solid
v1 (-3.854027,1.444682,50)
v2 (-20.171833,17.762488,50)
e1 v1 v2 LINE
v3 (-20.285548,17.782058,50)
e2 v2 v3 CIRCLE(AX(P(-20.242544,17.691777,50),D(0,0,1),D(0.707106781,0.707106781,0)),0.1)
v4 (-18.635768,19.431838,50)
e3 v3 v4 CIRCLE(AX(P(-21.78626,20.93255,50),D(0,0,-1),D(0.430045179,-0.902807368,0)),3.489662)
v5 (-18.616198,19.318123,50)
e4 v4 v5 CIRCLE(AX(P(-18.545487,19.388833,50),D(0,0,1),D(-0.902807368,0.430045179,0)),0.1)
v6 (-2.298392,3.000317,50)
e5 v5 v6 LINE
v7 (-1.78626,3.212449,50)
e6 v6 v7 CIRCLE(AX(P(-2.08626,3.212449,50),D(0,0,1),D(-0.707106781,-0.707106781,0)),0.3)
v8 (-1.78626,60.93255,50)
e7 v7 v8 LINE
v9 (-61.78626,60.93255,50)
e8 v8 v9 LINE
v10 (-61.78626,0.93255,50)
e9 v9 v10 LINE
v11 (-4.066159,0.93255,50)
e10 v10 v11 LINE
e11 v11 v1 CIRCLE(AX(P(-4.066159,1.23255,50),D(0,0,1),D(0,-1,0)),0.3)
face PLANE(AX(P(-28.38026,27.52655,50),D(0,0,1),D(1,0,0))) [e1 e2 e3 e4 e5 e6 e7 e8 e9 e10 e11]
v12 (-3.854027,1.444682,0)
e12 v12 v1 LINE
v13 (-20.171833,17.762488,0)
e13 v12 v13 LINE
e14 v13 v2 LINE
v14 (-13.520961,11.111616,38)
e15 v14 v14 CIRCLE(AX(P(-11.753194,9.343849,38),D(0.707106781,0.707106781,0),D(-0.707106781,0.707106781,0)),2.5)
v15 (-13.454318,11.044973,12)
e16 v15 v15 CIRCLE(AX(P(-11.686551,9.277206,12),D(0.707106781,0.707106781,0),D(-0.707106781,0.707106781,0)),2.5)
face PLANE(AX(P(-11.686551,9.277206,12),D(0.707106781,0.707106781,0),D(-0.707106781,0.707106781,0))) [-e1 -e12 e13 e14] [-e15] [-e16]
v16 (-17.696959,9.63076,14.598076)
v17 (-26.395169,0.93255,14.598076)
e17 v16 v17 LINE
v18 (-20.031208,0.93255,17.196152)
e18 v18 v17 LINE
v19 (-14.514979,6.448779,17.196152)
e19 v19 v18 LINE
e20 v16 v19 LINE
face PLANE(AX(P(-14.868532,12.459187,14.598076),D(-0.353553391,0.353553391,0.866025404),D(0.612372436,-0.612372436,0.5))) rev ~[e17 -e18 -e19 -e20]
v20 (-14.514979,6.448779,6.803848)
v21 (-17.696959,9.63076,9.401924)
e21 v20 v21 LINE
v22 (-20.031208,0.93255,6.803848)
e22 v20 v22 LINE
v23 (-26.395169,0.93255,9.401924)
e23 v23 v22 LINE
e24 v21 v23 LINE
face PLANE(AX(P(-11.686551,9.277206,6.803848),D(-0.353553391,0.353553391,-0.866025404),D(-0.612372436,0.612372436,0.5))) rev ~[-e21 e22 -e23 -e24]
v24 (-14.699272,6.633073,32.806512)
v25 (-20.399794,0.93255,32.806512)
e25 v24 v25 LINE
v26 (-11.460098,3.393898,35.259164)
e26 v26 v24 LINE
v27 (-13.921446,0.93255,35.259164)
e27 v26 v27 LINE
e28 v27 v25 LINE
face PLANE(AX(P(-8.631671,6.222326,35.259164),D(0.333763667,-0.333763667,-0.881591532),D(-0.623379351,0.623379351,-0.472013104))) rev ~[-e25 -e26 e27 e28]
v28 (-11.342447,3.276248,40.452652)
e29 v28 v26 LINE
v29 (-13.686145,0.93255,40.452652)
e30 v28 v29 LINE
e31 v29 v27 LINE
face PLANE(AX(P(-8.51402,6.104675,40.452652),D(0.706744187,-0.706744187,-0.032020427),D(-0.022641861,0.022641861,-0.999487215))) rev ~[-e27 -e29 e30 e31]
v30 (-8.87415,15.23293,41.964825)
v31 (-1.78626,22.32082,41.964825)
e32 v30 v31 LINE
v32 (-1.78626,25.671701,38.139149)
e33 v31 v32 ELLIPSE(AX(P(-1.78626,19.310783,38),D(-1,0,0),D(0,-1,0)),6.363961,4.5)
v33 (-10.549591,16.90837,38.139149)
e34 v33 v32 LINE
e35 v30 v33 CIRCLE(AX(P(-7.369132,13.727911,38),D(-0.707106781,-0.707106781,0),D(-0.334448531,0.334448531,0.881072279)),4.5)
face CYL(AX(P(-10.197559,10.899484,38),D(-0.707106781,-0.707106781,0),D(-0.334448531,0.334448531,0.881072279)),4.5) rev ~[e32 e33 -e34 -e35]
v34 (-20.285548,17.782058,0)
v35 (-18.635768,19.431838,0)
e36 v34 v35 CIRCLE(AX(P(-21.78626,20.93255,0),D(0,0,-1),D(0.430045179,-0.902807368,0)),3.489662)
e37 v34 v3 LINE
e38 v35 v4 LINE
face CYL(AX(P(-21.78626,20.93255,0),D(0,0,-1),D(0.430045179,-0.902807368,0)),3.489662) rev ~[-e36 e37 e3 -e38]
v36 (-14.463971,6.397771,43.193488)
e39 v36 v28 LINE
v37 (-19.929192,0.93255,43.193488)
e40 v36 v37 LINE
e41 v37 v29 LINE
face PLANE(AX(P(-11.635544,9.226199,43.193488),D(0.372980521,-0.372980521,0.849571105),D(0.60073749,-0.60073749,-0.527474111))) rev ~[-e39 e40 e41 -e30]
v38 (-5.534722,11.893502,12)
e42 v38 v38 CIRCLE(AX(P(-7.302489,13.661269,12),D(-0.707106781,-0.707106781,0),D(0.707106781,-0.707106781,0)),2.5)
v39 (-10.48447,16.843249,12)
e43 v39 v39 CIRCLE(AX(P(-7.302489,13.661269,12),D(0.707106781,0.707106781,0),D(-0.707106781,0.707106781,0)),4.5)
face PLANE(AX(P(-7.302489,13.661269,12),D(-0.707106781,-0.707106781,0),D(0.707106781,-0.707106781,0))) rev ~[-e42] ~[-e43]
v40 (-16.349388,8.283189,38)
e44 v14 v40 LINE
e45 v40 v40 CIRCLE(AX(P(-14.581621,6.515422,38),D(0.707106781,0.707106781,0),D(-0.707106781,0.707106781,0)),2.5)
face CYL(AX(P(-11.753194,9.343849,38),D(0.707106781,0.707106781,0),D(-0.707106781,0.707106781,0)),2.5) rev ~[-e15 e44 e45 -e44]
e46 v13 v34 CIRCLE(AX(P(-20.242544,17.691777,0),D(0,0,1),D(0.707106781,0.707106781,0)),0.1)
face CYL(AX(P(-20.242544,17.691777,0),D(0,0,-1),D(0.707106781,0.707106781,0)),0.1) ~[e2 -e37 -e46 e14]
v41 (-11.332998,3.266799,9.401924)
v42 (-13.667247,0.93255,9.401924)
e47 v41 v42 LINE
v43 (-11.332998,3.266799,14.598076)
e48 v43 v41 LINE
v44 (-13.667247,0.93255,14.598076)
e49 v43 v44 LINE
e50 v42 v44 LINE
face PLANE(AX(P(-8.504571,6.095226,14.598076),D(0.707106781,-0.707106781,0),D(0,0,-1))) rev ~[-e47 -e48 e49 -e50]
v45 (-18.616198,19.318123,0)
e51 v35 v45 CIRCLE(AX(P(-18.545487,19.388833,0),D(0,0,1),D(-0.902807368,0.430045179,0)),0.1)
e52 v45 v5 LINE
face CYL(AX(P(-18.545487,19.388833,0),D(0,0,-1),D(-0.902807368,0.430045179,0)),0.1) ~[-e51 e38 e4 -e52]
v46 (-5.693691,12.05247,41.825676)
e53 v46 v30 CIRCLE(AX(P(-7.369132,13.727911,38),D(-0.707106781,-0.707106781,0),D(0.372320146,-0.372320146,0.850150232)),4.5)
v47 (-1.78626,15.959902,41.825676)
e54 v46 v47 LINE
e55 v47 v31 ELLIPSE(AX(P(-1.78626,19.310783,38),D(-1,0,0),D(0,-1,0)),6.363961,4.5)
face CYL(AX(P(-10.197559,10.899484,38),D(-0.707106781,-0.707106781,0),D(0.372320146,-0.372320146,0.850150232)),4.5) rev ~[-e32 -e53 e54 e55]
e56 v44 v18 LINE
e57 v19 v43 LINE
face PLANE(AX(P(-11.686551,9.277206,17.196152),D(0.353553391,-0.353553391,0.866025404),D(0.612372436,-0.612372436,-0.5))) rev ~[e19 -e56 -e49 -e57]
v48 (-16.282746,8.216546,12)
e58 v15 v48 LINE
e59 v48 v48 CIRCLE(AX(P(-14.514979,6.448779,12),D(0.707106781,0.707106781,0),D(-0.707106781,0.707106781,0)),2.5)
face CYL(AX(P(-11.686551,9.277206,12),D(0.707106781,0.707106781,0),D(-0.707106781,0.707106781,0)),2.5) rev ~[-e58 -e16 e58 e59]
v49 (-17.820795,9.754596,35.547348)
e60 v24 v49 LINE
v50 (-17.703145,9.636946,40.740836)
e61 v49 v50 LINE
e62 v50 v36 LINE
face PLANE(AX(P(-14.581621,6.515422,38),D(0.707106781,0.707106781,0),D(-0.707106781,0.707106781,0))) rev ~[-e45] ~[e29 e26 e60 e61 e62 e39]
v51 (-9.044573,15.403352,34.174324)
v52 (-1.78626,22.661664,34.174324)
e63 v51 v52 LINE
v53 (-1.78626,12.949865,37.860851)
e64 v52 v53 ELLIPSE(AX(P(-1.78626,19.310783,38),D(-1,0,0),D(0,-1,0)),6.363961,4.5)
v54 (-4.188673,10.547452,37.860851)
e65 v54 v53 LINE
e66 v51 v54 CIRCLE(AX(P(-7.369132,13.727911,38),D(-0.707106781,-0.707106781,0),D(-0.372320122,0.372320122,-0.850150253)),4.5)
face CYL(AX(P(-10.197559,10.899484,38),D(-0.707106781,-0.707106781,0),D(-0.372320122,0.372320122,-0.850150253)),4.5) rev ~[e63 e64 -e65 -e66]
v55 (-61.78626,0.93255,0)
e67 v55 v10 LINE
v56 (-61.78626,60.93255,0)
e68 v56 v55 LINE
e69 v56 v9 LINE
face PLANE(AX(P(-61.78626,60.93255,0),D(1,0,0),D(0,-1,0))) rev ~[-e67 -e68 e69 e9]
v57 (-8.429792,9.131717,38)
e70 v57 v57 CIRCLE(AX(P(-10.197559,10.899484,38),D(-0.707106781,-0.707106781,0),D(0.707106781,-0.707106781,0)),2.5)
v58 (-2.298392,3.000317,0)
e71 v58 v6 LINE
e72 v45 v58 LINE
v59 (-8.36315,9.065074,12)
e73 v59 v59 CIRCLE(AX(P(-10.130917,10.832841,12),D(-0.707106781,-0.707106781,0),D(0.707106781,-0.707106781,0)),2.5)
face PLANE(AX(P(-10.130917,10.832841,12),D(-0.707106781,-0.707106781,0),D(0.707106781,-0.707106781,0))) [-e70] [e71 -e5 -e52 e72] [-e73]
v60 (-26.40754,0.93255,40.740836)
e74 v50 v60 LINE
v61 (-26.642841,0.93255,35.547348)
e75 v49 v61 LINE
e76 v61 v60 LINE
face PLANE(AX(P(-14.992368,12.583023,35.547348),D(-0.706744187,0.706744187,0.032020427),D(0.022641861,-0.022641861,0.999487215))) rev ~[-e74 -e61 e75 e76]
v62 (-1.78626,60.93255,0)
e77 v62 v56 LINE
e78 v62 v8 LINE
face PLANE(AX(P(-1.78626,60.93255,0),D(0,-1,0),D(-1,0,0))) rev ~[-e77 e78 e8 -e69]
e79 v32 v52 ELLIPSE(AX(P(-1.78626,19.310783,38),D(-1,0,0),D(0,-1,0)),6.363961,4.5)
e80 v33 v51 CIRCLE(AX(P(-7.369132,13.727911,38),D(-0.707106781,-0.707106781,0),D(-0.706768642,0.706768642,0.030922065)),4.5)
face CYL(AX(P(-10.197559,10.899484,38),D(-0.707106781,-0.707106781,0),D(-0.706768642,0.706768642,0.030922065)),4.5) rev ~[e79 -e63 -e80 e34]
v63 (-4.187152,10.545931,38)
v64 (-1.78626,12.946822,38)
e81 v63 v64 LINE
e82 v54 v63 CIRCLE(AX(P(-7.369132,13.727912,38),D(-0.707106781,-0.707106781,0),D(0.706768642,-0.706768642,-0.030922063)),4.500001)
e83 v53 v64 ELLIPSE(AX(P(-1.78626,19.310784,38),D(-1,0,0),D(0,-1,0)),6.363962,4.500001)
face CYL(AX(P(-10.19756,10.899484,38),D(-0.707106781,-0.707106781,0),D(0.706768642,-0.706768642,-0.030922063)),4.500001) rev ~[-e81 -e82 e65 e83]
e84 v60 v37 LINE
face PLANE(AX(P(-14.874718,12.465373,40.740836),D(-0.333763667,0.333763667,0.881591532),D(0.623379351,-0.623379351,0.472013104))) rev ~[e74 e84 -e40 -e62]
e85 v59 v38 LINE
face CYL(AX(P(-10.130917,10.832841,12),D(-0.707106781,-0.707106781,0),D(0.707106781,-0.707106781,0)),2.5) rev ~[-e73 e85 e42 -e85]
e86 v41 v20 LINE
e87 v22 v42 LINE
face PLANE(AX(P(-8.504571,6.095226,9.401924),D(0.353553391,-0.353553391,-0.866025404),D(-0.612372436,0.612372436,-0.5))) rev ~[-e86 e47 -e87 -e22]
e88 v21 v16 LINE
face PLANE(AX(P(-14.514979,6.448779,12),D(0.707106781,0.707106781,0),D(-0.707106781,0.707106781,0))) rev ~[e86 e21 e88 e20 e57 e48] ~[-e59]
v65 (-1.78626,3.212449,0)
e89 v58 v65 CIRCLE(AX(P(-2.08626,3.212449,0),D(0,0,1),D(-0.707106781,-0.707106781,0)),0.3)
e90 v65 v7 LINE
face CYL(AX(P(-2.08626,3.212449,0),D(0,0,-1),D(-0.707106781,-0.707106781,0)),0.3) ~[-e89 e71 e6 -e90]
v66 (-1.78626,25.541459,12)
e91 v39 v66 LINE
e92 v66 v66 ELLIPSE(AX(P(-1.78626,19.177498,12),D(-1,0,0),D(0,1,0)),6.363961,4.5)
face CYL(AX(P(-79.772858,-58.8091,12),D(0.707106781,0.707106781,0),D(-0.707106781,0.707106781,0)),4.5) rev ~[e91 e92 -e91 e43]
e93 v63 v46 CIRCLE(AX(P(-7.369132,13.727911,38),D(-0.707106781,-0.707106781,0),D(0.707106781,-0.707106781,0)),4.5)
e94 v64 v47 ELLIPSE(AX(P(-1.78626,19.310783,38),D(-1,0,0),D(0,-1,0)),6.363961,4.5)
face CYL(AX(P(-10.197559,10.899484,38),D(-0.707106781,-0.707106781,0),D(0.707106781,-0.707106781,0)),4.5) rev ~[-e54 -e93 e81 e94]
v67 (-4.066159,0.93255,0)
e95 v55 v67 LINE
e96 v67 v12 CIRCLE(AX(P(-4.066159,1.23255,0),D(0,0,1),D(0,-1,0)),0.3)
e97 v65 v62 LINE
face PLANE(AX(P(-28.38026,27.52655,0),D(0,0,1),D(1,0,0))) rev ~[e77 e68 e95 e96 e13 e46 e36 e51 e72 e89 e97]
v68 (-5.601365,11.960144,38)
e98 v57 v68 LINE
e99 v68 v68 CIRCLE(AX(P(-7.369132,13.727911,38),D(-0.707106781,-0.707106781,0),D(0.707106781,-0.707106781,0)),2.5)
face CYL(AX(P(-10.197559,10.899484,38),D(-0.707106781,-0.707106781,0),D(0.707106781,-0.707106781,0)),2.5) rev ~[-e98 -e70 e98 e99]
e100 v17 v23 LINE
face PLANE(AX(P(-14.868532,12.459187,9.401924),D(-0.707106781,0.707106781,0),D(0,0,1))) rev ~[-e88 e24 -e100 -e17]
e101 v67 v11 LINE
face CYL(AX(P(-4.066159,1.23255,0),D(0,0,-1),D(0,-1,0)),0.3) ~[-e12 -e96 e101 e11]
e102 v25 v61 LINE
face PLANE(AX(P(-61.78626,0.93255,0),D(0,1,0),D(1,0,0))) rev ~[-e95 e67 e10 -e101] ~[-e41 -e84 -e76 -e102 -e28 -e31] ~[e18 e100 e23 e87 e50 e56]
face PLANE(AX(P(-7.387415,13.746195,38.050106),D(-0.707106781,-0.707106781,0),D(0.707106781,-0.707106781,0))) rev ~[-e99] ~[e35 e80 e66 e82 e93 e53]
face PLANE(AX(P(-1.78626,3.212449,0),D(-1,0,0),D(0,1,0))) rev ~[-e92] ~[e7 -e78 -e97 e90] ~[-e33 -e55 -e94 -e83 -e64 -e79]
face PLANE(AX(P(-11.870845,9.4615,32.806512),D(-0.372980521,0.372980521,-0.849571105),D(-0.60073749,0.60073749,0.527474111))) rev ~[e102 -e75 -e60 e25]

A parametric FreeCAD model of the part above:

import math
import FreeCAD as App
import Part
import Sketcher

V = App.Vector
Q = App.Units.Quantity

doc = App.newDocument("Part")
body = doc.addObject("PartDesign::Body", "Body")

sketch1 = doc.addObject("Sketcher::SketchObject", "Sketch")
body.addObject(sketch1)
sketch1.AttachmentSupport = (doc.XY_Plane, [""])
sketch1.MapMode = "FlatFace"
sketch1.addGeometry(Part.LineSegment(V(-1.78626, 60.93255, 0), V(-61.78626, 60.93255, 0)), False)
sketch1.addGeometry(Part.LineSegment(V(-61.78626, 60.93255, 0), V(-61.78626, 0.93255, 0)), False)
sketch1.addGeometry(Part.LineSegment(V(-61.78626, 0.93255, 0), V(-4.066159, 0.93255, 0)), False)
sketch1.addGeometry(Part.ArcOfCircle(Part.Circle(V(-4.066159, 1.23255, 0), V(0, 0, 1), 0.3), math.radians(-90), math.radians(45)), False)
sketch1.addGeometry(Part.LineSegment(V(-3.854027, 1.444682, 0), V(-20.171833, 17.762488, 0)), False)
sketch1.addGeometry(Part.ArcOfCircle(Part.Circle(V(-20.242544, 17.691777, 0), V(0, 0, 1), 0.1), math.radians(45), math.radians(115.470427)), False)
sketch1.addGeometry(Part.ArcOfCircle(Part.Circle(V(-21.78626, 20.93255, 0), V(0, 0, 1), 3.489662), math.radians(-25.470427), math.radians(295.470427)), False)
sketch1.addGeometry(Part.ArcOfCircle(Part.Circle(V(-18.545487, 19.388833, 0), V(0, 0, 1), 0.1), math.radians(154.529573), math.radians(225)), False)
sketch1.addGeometry(Part.LineSegment(V(-18.616198, 19.318123, 0), V(-2.298392, 3.000317, 0)), False)
sketch1.addGeometry(Part.ArcOfCircle(Part.Circle(V(-2.08626, 3.212449, 0), V(0, 0, 1), 0.3), math.radians(-135), math.radians(0)), False)
sketch1.addGeometry(Part.LineSegment(V(-1.78626, 3.212449, 0), V(-1.78626, 60.93255, 0)), False)
sketch1.addConstraint(Sketcher.Constraint("Coincident", 0, 2, 1, 1))
sketch1.addConstraint(Sketcher.Constraint("Coincident", 1, 2, 2, 1))
sketch1.addConstraint(Sketcher.Constraint("Tangent", 2, 2, 3, 1))
sketch1.addConstraint(Sketcher.Constraint("Tangent", 3, 2, 4, 1))
sketch1.addConstraint(Sketcher.Constraint("Tangent", 4, 2, 5, 1))
sketch1.addConstraint(Sketcher.Constraint("Tangent", 5, 2, 6, 2))
sketch1.addConstraint(Sketcher.Constraint("Tangent", 6, 1, 7, 1))
sketch1.addConstraint(Sketcher.Constraint("Tangent", 7, 2, 8, 1))
sketch1.addConstraint(Sketcher.Constraint("Tangent", 8, 2, 9, 1))
sketch1.addConstraint(Sketcher.Constraint("Tangent", 9, 2, 10, 1))
sketch1.addConstraint(Sketcher.Constraint("Coincident", 10, 2, 0, 1))
sketch1.addConstraint(Sketcher.Constraint("Horizontal", 0))
sketch1.addConstraint(Sketcher.Constraint("Vertical", 1))
sketch1.addConstraint(Sketcher.Constraint("Horizontal", 2))
sketch1.addConstraint(Sketcher.Constraint("Vertical", 10))
sketch1.addConstraint(Sketcher.Constraint("Equal", 5, 7))
sketch1.addConstraint(Sketcher.Constraint("Equal", 3, 9))
sketch1.addConstraint(Sketcher.Constraint("Parallel", 4, 8))
sketch1.addConstraint(Sketcher.Constraint("Equal", 0, 1))
sketch1.addConstraint(Sketcher.Constraint("Equal", 2, 10))
sketch1.addConstraint(Sketcher.Constraint("Equal", 4, 8))
sketch1.addConstraint(Sketcher.Constraint("Radius", 3, 0.3))
sketch1.addConstraint(Sketcher.Constraint("Radius", 5, 0.1))
sketch1.addConstraint(Sketcher.Constraint("DistanceX", 0, 2, 0, 1, 60.0))
sketch1.addConstraint(Sketcher.Constraint("Angle", 4, Q("135 deg")))
sketch1.addConstraint(Sketcher.Constraint("DistanceX", 0, 2, 6, 3, 40.0))
sketch1.addConstraint(Sketcher.Constraint("Radius", 6, 3.489662))
sketch1.addConstraint(Sketcher.Constraint("DistanceX", 2, 1, 2, 2, 57.720101))
sketch1.addConstraint(Sketcher.Constraint("DistanceX", 3, 3, -1, 1, 4.066159))
sketch1.addConstraint(Sketcher.Constraint("DistanceY", -1, 1, 3, 3, 1.23255))
pad1 = doc.addObject("PartDesign::Pad", "Pad")
body.addObject(pad1)
pad1.Profile = sketch1
pad1.Length = 50

sketch2 = doc.addObject("Sketcher::SketchObject", "Sketch001")
body.addObject(sketch2)
sketch2.Placement = App.Placement(V(0.350962, 0.350962, 0), App.Rotation(V(0.707106781, -0.707106781, 0), V(0, 0, 0.999999999), V(-0.707106781, -0.707106781, 0), "ZXY"))
sketch2.addGeometry(Part.Circle(V(-14.917862, 38, 0), V(0, 0, 1), 2.5), False)
sketch2.addConstraint(Sketcher.Constraint("Diameter", 0, 5.0))
sketch2.addConstraint(Sketcher.Constraint("DistanceY", -1, 1, 0, 3, 38.0))
sketch2.addConstraint(Sketcher.Constraint("DistanceX", 0, 3, -1, 1, 14.917862))
pocket1 = doc.addObject("PartDesign::Pocket", "Pocket")
body.addObject(pocket1)
pocket1.Profile = sketch2
pocket1.Type = "ThroughAll"

sketch3 = doc.addObject("Sketcher::SketchObject", "Sketch002")
body.addObject(sketch3)
sketch3.Placement = App.Placement(V(0.350962, 0.350962, 0), App.Rotation(V(0.707106781, -0.707106781, 0), V(0, 0, -0.999999999), V(0.707106781, 0.707106781, 0), "ZXY"))
sketch3.addGeometry(Part.Circle(V(-14.917862, -38, 0), V(0, 0, 1), 2.5), False)
sketch3.addConstraint(Sketcher.Constraint("Diameter", 0, 5.0))
sketch3.addConstraint(Sketcher.Constraint("DistanceY", 0, 3, -1, 1, 38.0))
sketch3.addConstraint(Sketcher.Constraint("DistanceX", 0, 3, -1, 1, 14.917862))
doc.recompute()
hole = doc.addObject("PartDesign::Hole", "Hole")
body.addObject(hole)
hole.Profile = sketch3
hole.ThreadType = "None"
hole.Diameter = 5
hole.DepthType = "ThroughAll"
body2 = doc.addObject("PartDesign::Body", "Body001")

sketch4 = doc.addObject("Sketcher::SketchObject", "Sketch003")
body2.addObject(sketch4)
sketch4.Placement = App.Placement(V(0.350962, 0.350962, 0), App.Rotation(V(0.707106781, -0.707106781, 0), V(0, 0, 0.999999999), V(-0.707106781, -0.707106781, 0), "ZXY"))
sketch4.addGeometry(Part.ArcOfCircle(Part.Circle(V(-14.917863, 38, 0), V(0, 0, 1), 4.500001), math.radians(-1.771986), math.radians(0)), False)
sketch4.addGeometry(Part.ArcOfCircle(Part.Circle(V(-14.917862, 38, 0), V(0, 0, 1), 4.5), math.radians(0), math.radians(58.228013)), False)
sketch4.addGeometry(Part.ArcOfCircle(Part.Circle(V(-14.917862, 38, 0), V(0, 0, 1), 4.5), math.radians(58.228013), math.radians(118.228017)), False)
sketch4.addGeometry(Part.ArcOfCircle(Part.Circle(V(-14.917862, 38, 0), V(0, 0, 1), 4.5), math.radians(118.228017), math.radians(178.228014)), False)
sketch4.addGeometry(Part.ArcOfCircle(Part.Circle(V(-14.917862, 38, 0), V(0, 0, 1), 4.5), math.radians(178.228014), math.radians(238.228016)), False)
sketch4.addGeometry(Part.ArcOfCircle(Part.Circle(V(-14.917862, 38, 0), V(0, 0, 1), 4.5), math.radians(-121.771984), math.radians(-1.771986)), False)
sketch4.addGeometry(Part.Circle(V(-14.917862, 38, 0), V(0, 0, 1), 2.5), False)
sketch4.addConstraint(Sketcher.Constraint("Tangent", 0, 2, 1, 1))
sketch4.addConstraint(Sketcher.Constraint("Tangent", 1, 2, 2, 1))
sketch4.addConstraint(Sketcher.Constraint("Tangent", 2, 2, 3, 1))
sketch4.addConstraint(Sketcher.Constraint("Tangent", 3, 2, 4, 1))
sketch4.addConstraint(Sketcher.Constraint("Tangent", 4, 2, 5, 1))
sketch4.addConstraint(Sketcher.Constraint("Tangent", 5, 2, 0, 1))
sketch4.addConstraint(Sketcher.Constraint("Coincident", 2, 3, 0, 3))
sketch4.addConstraint(Sketcher.Constraint("Coincident", 6, 3, 0, 3))
sketch4.addConstraint(Sketcher.Constraint("Equal", 2, 3))
sketch4.addConstraint(Sketcher.Constraint("Horizontal", 6, 3, 0, 2))
sketch4.addConstraint(Sketcher.Constraint("Diameter", 6, 5.0))
sketch4.addConstraint(Sketcher.Constraint("Radius", 0, 4.500001))
sketch4.addConstraint(Sketcher.Constraint("DistanceY", -1, 1, 0, 3, 38.0))
sketch4.addConstraint(Sketcher.Constraint("DistanceX", 1, 2, -1, 1, 12.548431))
sketch4.addConstraint(Sketcher.Constraint("DistanceX", 2, 2, -1, 1, 17.04628))
sketch4.addConstraint(Sketcher.Constraint("DistanceX", 3, 2, -1, 1, 19.41571))
sketch4.addConstraint(Sketcher.Constraint("DistanceY", -1, 1, 3, 2, 38.139149))
sketch4.addConstraint(Sketcher.Constraint("DistanceY", -1, 1, 5, 2, 37.860851))
sketch4.addConstraint(Sketcher.Constraint("DistanceX", 4, 2, 0, 3, 2.36943))
pad2 = doc.addObject("PartDesign::Pad", "Pad001")
body2.addObject(pad2)
pad2.Profile = sketch4
pad2.Length = 25
pad2.Reversed = True
doc.recompute()

boolean = doc.addObject("PartDesign::Boolean", "Boolean")
body.addObject(boolean)
boolean.Type = "Cut"
boolean.addObjects([body2])

sketch5 = doc.addObject("Sketcher::SketchObject", "Sketch004")
body.addObject(sketch5)
sketch5.Placement = App.Placement(V(0.350962, 0.350962, 0), App.Rotation(V(0.707106781, -0.707106781, 0), V(0, 0, 0.999999999), V(-0.707106781, -0.707106781, 0), "ZXY"))
sketch5.addGeometry(Part.ArcOfCircle(Part.Circle(V(-14.917863, 38, 0), V(0, 0, 1), 4.500001), math.radians(-1.771986), math.radians(0)), False)
sketch5.addGeometry(Part.ArcOfCircle(Part.Circle(V(-14.917862, 38, 0), V(0, 0, 1), 4.5), math.radians(0), math.radians(58.228013)), False)
sketch5.addGeometry(Part.ArcOfCircle(Part.Circle(V(-14.917862, 38, 0), V(0, 0, 1), 4.5), math.radians(58.228013), math.radians(118.228017)), False)
sketch5.addGeometry(Part.ArcOfCircle(Part.Circle(V(-14.917862, 38, 0), V(0, 0, 1), 4.5), math.radians(118.228017), math.radians(178.228014)), False)
sketch5.addGeometry(Part.ArcOfCircle(Part.Circle(V(-14.917862, 38, 0), V(0, 0, 1), 4.5), math.radians(178.228014), math.radians(238.228016)), False)
sketch5.addGeometry(Part.ArcOfCircle(Part.Circle(V(-14.917862, 38, 0), V(0, 0, 1), 4.5), math.radians(-121.771984), math.radians(-1.771986)), False)
sketch5.addGeometry(Part.Circle(V(-14.917862, 38, 0), V(0, 0, 1), 2.5), False)
sketch5.addConstraint(Sketcher.Constraint("Tangent", 0, 2, 1, 1))
sketch5.addConstraint(Sketcher.Constraint("Tangent", 1, 2, 2, 1))
sketch5.addConstraint(Sketcher.Constraint("Tangent", 2, 2, 3, 1))
sketch5.addConstraint(Sketcher.Constraint("Tangent", 3, 2, 4, 1))
sketch5.addConstraint(Sketcher.Constraint("Tangent", 4, 2, 5, 1))
sketch5.addConstraint(Sketcher.Constraint("Tangent", 5, 2, 0, 1))
sketch5.addConstraint(Sketcher.Constraint("Coincident", 2, 3, 0, 3))
sketch5.addConstraint(Sketcher.Constraint("Coincident", 6, 3, 0, 3))
sketch5.addConstraint(Sketcher.Constraint("Equal", 2, 3))
sketch5.addConstraint(Sketcher.Constraint("Horizontal", 6, 3, 0, 2))
sketch5.addConstraint(Sketcher.Constraint("Diameter", 6, 5.0))
sketch5.addConstraint(Sketcher.Constraint("Radius", 0, 4.500001))
sketch5.addConstraint(Sketcher.Constraint("DistanceY", -1, 1, 0, 3, 38.0))
sketch5.addConstraint(Sketcher.Constraint("DistanceX", 1, 2, -1, 1, 12.548431))
sketch5.addConstraint(Sketcher.Constraint("DistanceX", 2, 2, -1, 1, 17.04628))
sketch5.addConstraint(Sketcher.Constraint("DistanceX", 3, 2, -1, 1, 19.41571))
sketch5.addConstraint(Sketcher.Constraint("DistanceY", -1, 1, 3, 2, 38.139149))
sketch5.addConstraint(Sketcher.Constraint("DistanceY", -1, 1, 5, 2, 37.860851))
sketch5.addConstraint(Sketcher.Constraint("DistanceX", 4, 2, 0, 3, 2.36943))
pad3 = doc.addObject("PartDesign::Pad", "Pad002")
body.addObject(pad3)
pad3.Profile = sketch5
pad3.Length = 4
pad3.Reversed = True

sketch6 = doc.addObject("Sketcher::SketchObject", "Sketch005")
body.addObject(sketch6)
sketch6.Placement = App.Placement(V(0.350962, 0.350962, 0), App.Rotation(V(0.707106781, -0.707106781, 0), V(0, 0, -0.999999999), V(0.707106781, 0.707106781, 0), "ZXY"))
sketch6.addGeometry(Part.Circle(V(-14.823615, -12, 0), V(0, 0, 1), 2.5), False)
sketch6.addConstraint(Sketcher.Constraint("Diameter", 0, 5.0))
sketch6.addConstraint(Sketcher.Constraint("DistanceY", 0, 3, -1, 1, 12.0))
sketch6.addConstraint(Sketcher.Constraint("DistanceX", 0, 3, -1, 1, 14.823615))
pocket2 = doc.addObject("PartDesign::Pocket", "Pocket001")
body.addObject(pocket2)
pocket2.Profile = sketch6
pocket2.Type = "ThroughAll"

sketch7 = doc.addObject("Sketcher::SketchObject", "Sketch006")
body.addObject(sketch7)
sketch7.Placement = App.Placement(V(-1.204672, -1.204672, 0), App.Rotation(V(-0.707106781, 0.707106781, 0), V(0, 0, 0.999999999), V(0.707106781, 0.707106781, 0), "ZXY"))
sketch7.addGeometry(Part.LineSegment(V(14.751479, 43.193488, 0), V(10.336978, 40.452652, 0)), False)
sketch7.addGeometry(Part.LineSegment(V(10.336978, 40.452652, 0), V(10.503361, 35.259164, 0)), False)
sketch7.addGeometry(Part.LineSegment(V(10.503361, 35.259164, 0), V(15.084245, 32.806512, 0)), False)
sketch7.addGeometry(Part.LineSegment(V(15.084245, 32.806512, 0), V(19.498746, 35.547348, 0)), False)
sketch7.addGeometry(Part.LineSegment(V(19.498746, 35.547348, 0), V(19.332363, 40.740836, 0)), False)
sketch7.addGeometry(Part.LineSegment(V(19.332363, 40.740836, 0), V(14.751479, 43.193488, 0)), False)
sketch7.addGeometry(Part.Circle(V(14.917862, 38, 0), V(0, 0, 1), 2.5), False)
sketch7.addGeometry(Part.LineSegment(V(19.323615, 9.401924, 0), V(19.323615, 14.598076, 0)), False)
sketch7.addGeometry(Part.LineSegment(V(19.323615, 14.598076, 0), V(14.823615, 17.196152, 0)), False)
sketch7.addGeometry(Part.LineSegment(V(14.823615, 17.196152, 0), V(10.323615, 14.598076, 0)), False)
sketch7.addGeometry(Part.LineSegment(V(10.323615, 14.598076, 0), V(10.323615, 9.401924, 0)), False)
sketch7.addGeometry(Part.LineSegment(V(10.323615, 9.401924, 0), V(14.823615, 6.803848, 0)), False)
sketch7.addGeometry(Part.LineSegment(V(14.823615, 6.803848, 0), V(19.323615, 9.401924, 0)), False)
sketch7.addConstraint(Sketcher.Constraint("Coincident", 0, 2, 1, 1))
sketch7.addConstraint(Sketcher.Constraint("Coincident", 1, 2, 2, 1))
sketch7.addConstraint(Sketcher.Constraint("Coincident", 2, 2, 3, 1))
sketch7.addConstraint(Sketcher.Constraint("Coincident", 3, 2, 4, 1))
sketch7.addConstraint(Sketcher.Constraint("Coincident", 4, 2, 5, 1))
sketch7.addConstraint(Sketcher.Constraint("Coincident", 5, 2, 0, 1))
sketch7.addConstraint(Sketcher.Constraint("Coincident", 7, 2, 8, 1))
sketch7.addConstraint(Sketcher.Constraint("Coincident", 8, 2, 9, 1))
sketch7.addConstraint(Sketcher.Constraint("Coincident", 9, 2, 10, 1))
sketch7.addConstraint(Sketcher.Constraint("Coincident", 10, 2, 11, 1))
sketch7.addConstraint(Sketcher.Constraint("Coincident", 11, 2, 12, 1))
sketch7.addConstraint(Sketcher.Constraint("Coincident", 12, 2, 7, 1))
sketch7.addConstraint(Sketcher.Constraint("Vertical", 7))
sketch7.addConstraint(Sketcher.Constraint("Vertical", 10))
sketch7.addConstraint(Sketcher.Constraint("Parallel", 0, 3))
sketch7.addConstraint(Sketcher.Constraint("Parallel", 1, 4))
sketch7.addConstraint(Sketcher.Constraint("Parallel", 2, 5))
sketch7.addConstraint(Sketcher.Constraint("Parallel", 8, 11))
sketch7.addConstraint(Sketcher.Constraint("Parallel", 9, 12))
sketch7.addConstraint(Sketcher.Constraint("Horizontal", 7, 2, 9, 2))
sketch7.addConstraint(Sketcher.Constraint("Horizontal", 10, 2, 12, 2))
sketch7.addConstraint(Sketcher.Constraint("Vertical", 8, 2, 11, 2))
sketch7.addConstraint(Sketcher.Constraint("Equal", 0, 1))
sketch7.addConstraint(Sketcher.Constraint("Equal", 1, 2))
sketch7.addConstraint(Sketcher.Constraint("Equal", 2, 3))
sketch7.addConstraint(Sketcher.Constraint("Equal", 5, 8))
sketch7.addConstraint(Sketcher.Constraint("Diameter", 6, 5.0))
sketch7.addConstraint(Sketcher.Constraint("Angle", 8, Q("150 deg")))
sketch7.addConstraint(Sketcher.Constraint("DistanceY", -1, 1, 6, 3, 38.0))
sketch7.addConstraint(Sketcher.Constraint("DistanceX", 9, 2, 7, 2, 9.0))
sketch7.addConstraint(Sketcher.Constraint("DistanceX", 1, 2, 4, 2, 8.829002))
sketch7.addConstraint(Sketcher.Constraint("DistanceX", 1, 2, 6, 3, 4.414501))
sketch7.addConstraint(Sketcher.Constraint("DistanceX", 2, 2, 3, 2, 4.414501))
sketch7.addConstraint(Sketcher.Constraint("DistanceY", 7, 1, 7, 2, 5.196152))
sketch7.addConstraint(Sketcher.Constraint("DistanceX", -1, 1, 0, 2, 10.336978))
sketch7.addConstraint(Sketcher.Constraint("DistanceY", -1, 1, 0, 2, 40.452652))
sketch7.addConstraint(Sketcher.Constraint("DistanceX", -1, 1, 1, 2, 10.503361))
sketch7.addConstraint(Sketcher.Constraint("DistanceX", 2, 2, 7, 2, 4.23937))
sketch7.addConstraint(Sketcher.Constraint("DistanceY", 7, 2, 3, 2, 20.949272))
pocket3 = doc.addObject("PartDesign::Pocket", "Pocket002")
body.addObject(pocket3)
pocket3.Profile = sketch7
pocket3.Length = 25

sketch8 = doc.addObject("Sketcher::SketchObject", "Sketch007")
body.addObject(sketch8)
sketch8.Placement = App.Placement(V(-1.204672, -1.204672, 0), App.Rotation(V(-0.707106781, 0.707106781, 0), V(0, 0, 0.999999999), V(0.707106781, 0.707106781, 0), "ZXY"))
sketch8.addGeometry(Part.LineSegment(V(14.751479, 43.193488, 0), V(10.336978, 40.452652, 0)), False)
sketch8.addGeometry(Part.LineSegment(V(10.336978, 40.452652, 0), V(10.503361, 35.259164, 0)), False)
sketch8.addGeometry(Part.LineSegment(V(10.503361, 35.259164, 0), V(15.084245, 32.806512, 0)), False)
sketch8.addGeometry(Part.LineSegment(V(15.084245, 32.806512, 0), V(19.498746, 35.547348, 0)), False)
sketch8.addGeometry(Part.LineSegment(V(19.498746, 35.547348, 0), V(19.332363, 40.740836, 0)), False)
sketch8.addGeometry(Part.LineSegment(V(19.332363, 40.740836, 0), V(14.751479, 43.193488, 0)), False)
sketch8.addGeometry(Part.Circle(V(14.917862, 38, 0), V(0, 0, 1), 2.5), False)
sketch8.addConstraint(Sketcher.Constraint("Coincident", 0, 2, 1, 1))
sketch8.addConstraint(Sketcher.Constraint("Coincident", 1, 2, 2, 1))
sketch8.addConstraint(Sketcher.Constraint("Coincident", 2, 2, 3, 1))
sketch8.addConstraint(Sketcher.Constraint("Coincident", 3, 2, 4, 1))
sketch8.addConstraint(Sketcher.Constraint("Coincident", 4, 2, 5, 1))
sketch8.addConstraint(Sketcher.Constraint("Coincident", 5, 2, 0, 1))
sketch8.addConstraint(Sketcher.Constraint("Parallel", 0, 3))
sketch8.addConstraint(Sketcher.Constraint("Parallel", 1, 4))
sketch8.addConstraint(Sketcher.Constraint("Parallel", 2, 5))
sketch8.addConstraint(Sketcher.Constraint("Equal", 0, 1))
sketch8.addConstraint(Sketcher.Constraint("Equal", 1, 2))
sketch8.addConstraint(Sketcher.Constraint("Equal", 2, 3))
sketch8.addConstraint(Sketcher.Constraint("Diameter", 6, 5.0))
sketch8.addConstraint(Sketcher.Constraint("DistanceY", -1, 1, 6, 3, 38.0))
sketch8.addConstraint(Sketcher.Constraint("DistanceX", 1, 2, 4, 2, 8.829002))
sketch8.addConstraint(Sketcher.Constraint("DistanceX", 1, 2, 6, 3, 4.414501))
sketch8.addConstraint(Sketcher.Constraint("DistanceX", 2, 2, 3, 2, 4.414501))
sketch8.addConstraint(Sketcher.Constraint("DistanceX", -1, 1, 0, 2, 10.336978))
sketch8.addConstraint(Sketcher.Constraint("DistanceY", -1, 1, 0, 2, 40.452652))
sketch8.addConstraint(Sketcher.Constraint("DistanceX", -1, 1, 1, 2, 10.503361))
sketch8.addConstraint(Sketcher.Constraint("DistanceY", 2, 2, 0, 2, 7.64614))
pad4 = doc.addObject("PartDesign::Pad", "Pad003")
body.addObject(pad4)
pad4.Profile = sketch8
pad4.Length = 4
pad4.Reversed = True

sketch9 = doc.addObject("Sketcher::SketchObject", "Sketch008")
body.addObject(sketch9)
sketch9.Placement = App.Placement(V(0.350962, 0.350962, 0), App.Rotation(V(0.707106781, -0.707106781, 0), V(0, 0, 0.999999999), V(-0.707106781, -0.707106781, 0), "ZXY"))
sketch9.addGeometry(Part.Circle(V(-14.823615, 12, 0), V(0, 0, 1), 4.5), False)
sketch9.addConstraint(Sketcher.Constraint("Diameter", 0, 9.0))
sketch9.addConstraint(Sketcher.Constraint("DistanceY", -1, 1, 0, 3, 12.0))
sketch9.addConstraint(Sketcher.Constraint("DistanceX", 0, 3, -1, 1, 14.823615))
doc.recompute()
hole2 = doc.addObject("PartDesign::Hole", "Hole001")
body.addObject(hole2)
hole2.Profile = sketch9
hole2.ThreadType = "None"
hole2.Diameter = 9
hole2.DepthType = "ThroughAll"

sketch10 = doc.addObject("Sketcher::SketchObject", "Sketch009")
body.addObject(sketch10)
sketch10.Placement = App.Placement(V(0.350962, 0.350962, 0), App.Rotation(V(0.707106781, -0.707106781, 0), V(0, 0, 0.999999999), V(-0.707106781, -0.707106781, 0), "ZXY"))
sketch10.addGeometry(Part.Circle(V(-14.823615, 12, 0), V(0, 0, 1), 4.5), False)
sketch10.addGeometry(Part.Circle(V(-14.823615, 12, 0), V(0, 0, 1), 2.5), False)
sketch10.addConstraint(Sketcher.Constraint("Coincident", 1, 3, 0, 3))
sketch10.addConstraint(Sketcher.Constraint("Diameter", 0, 9.0))
sketch10.addConstraint(Sketcher.Constraint("Diameter", 1, 5.0))
sketch10.addConstraint(Sketcher.Constraint("DistanceY", -1, 1, 0, 3, 12.0))
sketch10.addConstraint(Sketcher.Constraint("DistanceX", 0, 3, -1, 1, 14.823615))
pad5 = doc.addObject("PartDesign::Pad", "Pad004")
body.addObject(pad5)
pad5.Profile = sketch10
pad5.Length = 4
pad5.Reversed = True

sketch11 = doc.addObject("Sketcher::SketchObject", "Sketch010")
body.addObject(sketch11)
sketch11.Placement = App.Placement(V(-1.204672, -1.204672, 0), App.Rotation(V(-0.707106781, 0.707106781, 0), V(0, 0, 0.999999999), V(0.707106781, 0.707106781, 0), "ZXY"))
sketch11.addGeometry(Part.LineSegment(V(19.323615, 9.401924, 0), V(19.323615, 14.598076, 0)), False)
sketch11.addGeometry(Part.LineSegment(V(19.323615, 14.598076, 0), V(14.823615, 17.196152, 0)), False)
sketch11.addGeometry(Part.LineSegment(V(14.823615, 17.196152, 0), V(10.323615, 14.598076, 0)), False)
sketch11.addGeometry(Part.LineSegment(V(10.323615, 14.598076, 0), V(10.323615, 9.401924, 0)), False)
sketch11.addGeometry(Part.LineSegment(V(10.323615, 9.401924, 0), V(14.823615, 6.803848, 0)), False)
sketch11.addGeometry(Part.LineSegment(V(14.823615, 6.803848, 0), V(19.323615, 9.401924, 0)), False)
sketch11.addGeometry(Part.Circle(V(14.823615, 12, 0), V(0, 0, 1), 2.5), False)
sketch11.addConstraint(Sketcher.Constraint("Coincident", 0, 2, 1, 1))
sketch11.addConstraint(Sketcher.Constraint("Coincident", 1, 2, 2, 1))
sketch11.addConstraint(Sketcher.Constraint("Coincident", 2, 2, 3, 1))
sketch11.addConstraint(Sketcher.Constraint("Coincident", 3, 2, 4, 1))
sketch11.addConstraint(Sketcher.Constraint("Coincident", 4, 2, 5, 1))
sketch11.addConstraint(Sketcher.Constraint("Coincident", 5, 2, 0, 1))
sketch11.addConstraint(Sketcher.Constraint("Vertical", 0))
sketch11.addConstraint(Sketcher.Constraint("Vertical", 3))
sketch11.addConstraint(Sketcher.Constraint("Parallel", 1, 4))
sketch11.addConstraint(Sketcher.Constraint("Parallel", 2, 5))
sketch11.addConstraint(Sketcher.Constraint("Horizontal", 0, 2, 2, 2))
sketch11.addConstraint(Sketcher.Constraint("Horizontal", 3, 2, 5, 2))
sketch11.addConstraint(Sketcher.Constraint("Vertical", 6, 3, 1, 2))
sketch11.addConstraint(Sketcher.Constraint("Vertical", 1, 2, 4, 2))
sketch11.addConstraint(Sketcher.Constraint("Diameter", 6, 5.0))
sketch11.addConstraint(Sketcher.Constraint("Angle", 1, Q("150 deg")))
sketch11.addConstraint(Sketcher.Constraint("DistanceY", -1, 1, 6, 3, 12.0))
sketch11.addConstraint(Sketcher.Constraint("DistanceX", 2, 2, 0, 2, 9.0))
sketch11.addConstraint(Sketcher.Constraint("DistanceY", 0, 1, 0, 2, 5.196152))
sketch11.addConstraint(Sketcher.Constraint("DistanceX", -1, 1, 6, 3, 14.823615))
sketch11.addConstraint(Sketcher.Constraint("DistanceY", -1, 1, 0, 2, 14.598076))
pad6 = doc.addObject("PartDesign::Pad", "Pad005")
body.addObject(pad6)
pad6.Profile = sketch11
pad6.Length = 4
pad6.Reversed = True

doc.recompute()
